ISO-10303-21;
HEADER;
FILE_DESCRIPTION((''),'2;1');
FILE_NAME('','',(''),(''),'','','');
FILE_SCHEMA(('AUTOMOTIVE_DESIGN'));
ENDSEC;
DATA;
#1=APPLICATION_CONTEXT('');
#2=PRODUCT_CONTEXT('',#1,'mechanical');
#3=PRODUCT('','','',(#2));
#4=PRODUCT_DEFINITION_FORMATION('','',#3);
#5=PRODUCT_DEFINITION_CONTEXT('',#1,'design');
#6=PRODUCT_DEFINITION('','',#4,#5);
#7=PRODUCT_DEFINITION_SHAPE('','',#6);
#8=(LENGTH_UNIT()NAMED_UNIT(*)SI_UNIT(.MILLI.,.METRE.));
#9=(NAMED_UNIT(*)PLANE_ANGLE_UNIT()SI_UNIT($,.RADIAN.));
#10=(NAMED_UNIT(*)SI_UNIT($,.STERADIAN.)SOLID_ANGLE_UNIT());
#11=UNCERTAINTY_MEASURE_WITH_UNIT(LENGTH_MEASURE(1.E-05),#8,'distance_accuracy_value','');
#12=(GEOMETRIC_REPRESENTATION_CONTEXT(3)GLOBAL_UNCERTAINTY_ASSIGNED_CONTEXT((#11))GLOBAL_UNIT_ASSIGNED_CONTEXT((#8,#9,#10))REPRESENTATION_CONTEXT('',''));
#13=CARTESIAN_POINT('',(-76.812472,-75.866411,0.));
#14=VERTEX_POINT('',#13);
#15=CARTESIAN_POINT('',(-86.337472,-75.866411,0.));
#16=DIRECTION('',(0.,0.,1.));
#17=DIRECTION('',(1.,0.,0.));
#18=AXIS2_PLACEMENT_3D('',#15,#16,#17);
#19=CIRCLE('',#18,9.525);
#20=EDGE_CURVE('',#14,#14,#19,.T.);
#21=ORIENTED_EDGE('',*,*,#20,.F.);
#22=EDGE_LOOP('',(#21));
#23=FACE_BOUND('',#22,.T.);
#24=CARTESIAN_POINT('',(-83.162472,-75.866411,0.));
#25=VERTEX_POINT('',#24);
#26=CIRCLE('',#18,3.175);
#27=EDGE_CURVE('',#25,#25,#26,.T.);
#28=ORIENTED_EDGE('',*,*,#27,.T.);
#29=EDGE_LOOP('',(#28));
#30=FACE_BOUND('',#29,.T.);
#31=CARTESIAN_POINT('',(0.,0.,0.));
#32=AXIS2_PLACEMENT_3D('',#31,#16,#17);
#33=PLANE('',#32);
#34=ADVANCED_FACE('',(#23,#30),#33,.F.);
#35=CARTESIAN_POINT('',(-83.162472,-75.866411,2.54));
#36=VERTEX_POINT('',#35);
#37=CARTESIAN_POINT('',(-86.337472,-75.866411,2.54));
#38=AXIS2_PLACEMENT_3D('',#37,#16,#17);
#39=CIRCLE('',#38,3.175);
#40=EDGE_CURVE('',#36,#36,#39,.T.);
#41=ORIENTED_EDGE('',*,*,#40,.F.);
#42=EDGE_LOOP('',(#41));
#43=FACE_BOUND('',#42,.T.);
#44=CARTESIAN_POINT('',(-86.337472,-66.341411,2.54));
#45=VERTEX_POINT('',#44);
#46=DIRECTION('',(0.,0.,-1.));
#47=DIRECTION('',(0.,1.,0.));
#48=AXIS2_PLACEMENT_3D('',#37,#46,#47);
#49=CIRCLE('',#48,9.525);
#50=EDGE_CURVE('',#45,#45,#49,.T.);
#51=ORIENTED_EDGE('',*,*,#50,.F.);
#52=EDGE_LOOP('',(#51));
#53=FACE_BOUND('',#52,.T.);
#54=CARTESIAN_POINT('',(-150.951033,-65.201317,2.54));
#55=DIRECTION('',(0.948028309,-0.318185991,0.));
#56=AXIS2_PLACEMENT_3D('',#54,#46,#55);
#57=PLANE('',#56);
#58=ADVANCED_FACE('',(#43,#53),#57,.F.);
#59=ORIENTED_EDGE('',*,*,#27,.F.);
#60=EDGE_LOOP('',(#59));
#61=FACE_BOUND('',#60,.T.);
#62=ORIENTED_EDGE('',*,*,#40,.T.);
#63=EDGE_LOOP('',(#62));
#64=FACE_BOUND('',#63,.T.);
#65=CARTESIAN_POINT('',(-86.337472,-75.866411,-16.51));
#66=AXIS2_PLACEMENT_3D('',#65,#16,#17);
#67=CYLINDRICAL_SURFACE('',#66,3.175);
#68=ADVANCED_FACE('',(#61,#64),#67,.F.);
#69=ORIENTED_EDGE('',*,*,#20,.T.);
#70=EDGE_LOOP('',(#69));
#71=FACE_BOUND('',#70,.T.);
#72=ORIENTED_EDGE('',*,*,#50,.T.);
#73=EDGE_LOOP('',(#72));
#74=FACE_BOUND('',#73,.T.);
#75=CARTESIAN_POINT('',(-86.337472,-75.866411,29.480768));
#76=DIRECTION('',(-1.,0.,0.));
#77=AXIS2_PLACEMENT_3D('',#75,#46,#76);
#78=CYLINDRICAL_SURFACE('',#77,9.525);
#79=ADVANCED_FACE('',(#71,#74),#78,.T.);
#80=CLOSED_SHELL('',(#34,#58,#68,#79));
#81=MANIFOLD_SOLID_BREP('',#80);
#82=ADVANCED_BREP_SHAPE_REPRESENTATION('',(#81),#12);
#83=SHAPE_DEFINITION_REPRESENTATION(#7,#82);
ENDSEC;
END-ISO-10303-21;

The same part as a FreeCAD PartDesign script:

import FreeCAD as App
import Part
import Sketcher
from FreeCAD import Vector
Q = App.Units.Quantity

doc = App.newDocument("Part")
params = doc.addObject("Spreadsheet::Sheet", "Params")
for row, (alias, value) in enumerate([
    ("sketch1_diameter", "0.75 in"),
    ("pad1_length", "0.1 in"),
    ("sketch2_diameter", "0.25 in"),
    ("pocket1_length", "0.75 in"),
], start=1):
    params.set(f"A{row}", alias)
    params.set(f"B{row}", "=" + value)
    params.setAlias(f"B{row}", alias)

body = doc.addObject("PartDesign::Body", "Body")

# Sketch on XY plane
sketch1 = body.newObject("Sketcher::SketchObject", "Sketch")
sketch1.AttachmentSupport = (doc.getObject("XY_Plane"), [""])
sketch1.MapMode = "FlatFace"
sketch1.addGeometry(Part.Circle(Vector(-86, -76, 0), Vector(0, 0, 1), 10), False)
sketch1.addConstraint(Sketcher.Constraint("Diameter", 0, Q("0.75 in")))
sketch1.addConstraint(Sketcher.Constraint("DistanceX", 0, 3, -1, 1, Q("86.337472 mm")))
sketch1.addConstraint(Sketcher.Constraint("DistanceY", 0, 3, -1, 1, Q("75.866411 mm")))
sketch1.setExpression("Constraints[0]", "Params.sketch1_diameter")
pad1 = body.newObject("PartDesign::Pad", "Pad")
pad1.Profile = sketch1
pad1.setExpression("Length", "Params.pad1_length")

# Sketch on XY plane
sketch2 = body.newObject("Sketcher::SketchObject", "Sketch001")
sketch2.AttachmentSupport = (doc.getObject("XY_Plane"), [""])
sketch2.MapMode = "FlatFace"
sketch2.AttachmentOffset = App.Placement(Vector(0, 0, 0.1 * 25.4), App.Rotation())
sketch2.addGeometry(Part.Circle(Vector(-86.3, -75.9, 0), Vector(0, 0, 1), 3.2), False)
sketch2.addConstraint(Sketcher.Constraint("Diameter", 0, Q("0.25 in")))
sketch2.addConstraint(Sketcher.Constraint("DistanceX", 0, 3, -1, 1, Q("86.337472 mm")))
sketch2.addConstraint(Sketcher.Constraint("DistanceY", 0, 3, -1, 1, Q("75.866411 mm")))
sketch2.setExpression("Constraints[0]", "Params.sketch2_diameter")
pocket1 = body.newObject("PartDesign::Pocket", "Pocket")
pocket1.Profile = sketch2
pocket1.setExpression("Length", "Params.pocket1_length")

doc.recompute()
